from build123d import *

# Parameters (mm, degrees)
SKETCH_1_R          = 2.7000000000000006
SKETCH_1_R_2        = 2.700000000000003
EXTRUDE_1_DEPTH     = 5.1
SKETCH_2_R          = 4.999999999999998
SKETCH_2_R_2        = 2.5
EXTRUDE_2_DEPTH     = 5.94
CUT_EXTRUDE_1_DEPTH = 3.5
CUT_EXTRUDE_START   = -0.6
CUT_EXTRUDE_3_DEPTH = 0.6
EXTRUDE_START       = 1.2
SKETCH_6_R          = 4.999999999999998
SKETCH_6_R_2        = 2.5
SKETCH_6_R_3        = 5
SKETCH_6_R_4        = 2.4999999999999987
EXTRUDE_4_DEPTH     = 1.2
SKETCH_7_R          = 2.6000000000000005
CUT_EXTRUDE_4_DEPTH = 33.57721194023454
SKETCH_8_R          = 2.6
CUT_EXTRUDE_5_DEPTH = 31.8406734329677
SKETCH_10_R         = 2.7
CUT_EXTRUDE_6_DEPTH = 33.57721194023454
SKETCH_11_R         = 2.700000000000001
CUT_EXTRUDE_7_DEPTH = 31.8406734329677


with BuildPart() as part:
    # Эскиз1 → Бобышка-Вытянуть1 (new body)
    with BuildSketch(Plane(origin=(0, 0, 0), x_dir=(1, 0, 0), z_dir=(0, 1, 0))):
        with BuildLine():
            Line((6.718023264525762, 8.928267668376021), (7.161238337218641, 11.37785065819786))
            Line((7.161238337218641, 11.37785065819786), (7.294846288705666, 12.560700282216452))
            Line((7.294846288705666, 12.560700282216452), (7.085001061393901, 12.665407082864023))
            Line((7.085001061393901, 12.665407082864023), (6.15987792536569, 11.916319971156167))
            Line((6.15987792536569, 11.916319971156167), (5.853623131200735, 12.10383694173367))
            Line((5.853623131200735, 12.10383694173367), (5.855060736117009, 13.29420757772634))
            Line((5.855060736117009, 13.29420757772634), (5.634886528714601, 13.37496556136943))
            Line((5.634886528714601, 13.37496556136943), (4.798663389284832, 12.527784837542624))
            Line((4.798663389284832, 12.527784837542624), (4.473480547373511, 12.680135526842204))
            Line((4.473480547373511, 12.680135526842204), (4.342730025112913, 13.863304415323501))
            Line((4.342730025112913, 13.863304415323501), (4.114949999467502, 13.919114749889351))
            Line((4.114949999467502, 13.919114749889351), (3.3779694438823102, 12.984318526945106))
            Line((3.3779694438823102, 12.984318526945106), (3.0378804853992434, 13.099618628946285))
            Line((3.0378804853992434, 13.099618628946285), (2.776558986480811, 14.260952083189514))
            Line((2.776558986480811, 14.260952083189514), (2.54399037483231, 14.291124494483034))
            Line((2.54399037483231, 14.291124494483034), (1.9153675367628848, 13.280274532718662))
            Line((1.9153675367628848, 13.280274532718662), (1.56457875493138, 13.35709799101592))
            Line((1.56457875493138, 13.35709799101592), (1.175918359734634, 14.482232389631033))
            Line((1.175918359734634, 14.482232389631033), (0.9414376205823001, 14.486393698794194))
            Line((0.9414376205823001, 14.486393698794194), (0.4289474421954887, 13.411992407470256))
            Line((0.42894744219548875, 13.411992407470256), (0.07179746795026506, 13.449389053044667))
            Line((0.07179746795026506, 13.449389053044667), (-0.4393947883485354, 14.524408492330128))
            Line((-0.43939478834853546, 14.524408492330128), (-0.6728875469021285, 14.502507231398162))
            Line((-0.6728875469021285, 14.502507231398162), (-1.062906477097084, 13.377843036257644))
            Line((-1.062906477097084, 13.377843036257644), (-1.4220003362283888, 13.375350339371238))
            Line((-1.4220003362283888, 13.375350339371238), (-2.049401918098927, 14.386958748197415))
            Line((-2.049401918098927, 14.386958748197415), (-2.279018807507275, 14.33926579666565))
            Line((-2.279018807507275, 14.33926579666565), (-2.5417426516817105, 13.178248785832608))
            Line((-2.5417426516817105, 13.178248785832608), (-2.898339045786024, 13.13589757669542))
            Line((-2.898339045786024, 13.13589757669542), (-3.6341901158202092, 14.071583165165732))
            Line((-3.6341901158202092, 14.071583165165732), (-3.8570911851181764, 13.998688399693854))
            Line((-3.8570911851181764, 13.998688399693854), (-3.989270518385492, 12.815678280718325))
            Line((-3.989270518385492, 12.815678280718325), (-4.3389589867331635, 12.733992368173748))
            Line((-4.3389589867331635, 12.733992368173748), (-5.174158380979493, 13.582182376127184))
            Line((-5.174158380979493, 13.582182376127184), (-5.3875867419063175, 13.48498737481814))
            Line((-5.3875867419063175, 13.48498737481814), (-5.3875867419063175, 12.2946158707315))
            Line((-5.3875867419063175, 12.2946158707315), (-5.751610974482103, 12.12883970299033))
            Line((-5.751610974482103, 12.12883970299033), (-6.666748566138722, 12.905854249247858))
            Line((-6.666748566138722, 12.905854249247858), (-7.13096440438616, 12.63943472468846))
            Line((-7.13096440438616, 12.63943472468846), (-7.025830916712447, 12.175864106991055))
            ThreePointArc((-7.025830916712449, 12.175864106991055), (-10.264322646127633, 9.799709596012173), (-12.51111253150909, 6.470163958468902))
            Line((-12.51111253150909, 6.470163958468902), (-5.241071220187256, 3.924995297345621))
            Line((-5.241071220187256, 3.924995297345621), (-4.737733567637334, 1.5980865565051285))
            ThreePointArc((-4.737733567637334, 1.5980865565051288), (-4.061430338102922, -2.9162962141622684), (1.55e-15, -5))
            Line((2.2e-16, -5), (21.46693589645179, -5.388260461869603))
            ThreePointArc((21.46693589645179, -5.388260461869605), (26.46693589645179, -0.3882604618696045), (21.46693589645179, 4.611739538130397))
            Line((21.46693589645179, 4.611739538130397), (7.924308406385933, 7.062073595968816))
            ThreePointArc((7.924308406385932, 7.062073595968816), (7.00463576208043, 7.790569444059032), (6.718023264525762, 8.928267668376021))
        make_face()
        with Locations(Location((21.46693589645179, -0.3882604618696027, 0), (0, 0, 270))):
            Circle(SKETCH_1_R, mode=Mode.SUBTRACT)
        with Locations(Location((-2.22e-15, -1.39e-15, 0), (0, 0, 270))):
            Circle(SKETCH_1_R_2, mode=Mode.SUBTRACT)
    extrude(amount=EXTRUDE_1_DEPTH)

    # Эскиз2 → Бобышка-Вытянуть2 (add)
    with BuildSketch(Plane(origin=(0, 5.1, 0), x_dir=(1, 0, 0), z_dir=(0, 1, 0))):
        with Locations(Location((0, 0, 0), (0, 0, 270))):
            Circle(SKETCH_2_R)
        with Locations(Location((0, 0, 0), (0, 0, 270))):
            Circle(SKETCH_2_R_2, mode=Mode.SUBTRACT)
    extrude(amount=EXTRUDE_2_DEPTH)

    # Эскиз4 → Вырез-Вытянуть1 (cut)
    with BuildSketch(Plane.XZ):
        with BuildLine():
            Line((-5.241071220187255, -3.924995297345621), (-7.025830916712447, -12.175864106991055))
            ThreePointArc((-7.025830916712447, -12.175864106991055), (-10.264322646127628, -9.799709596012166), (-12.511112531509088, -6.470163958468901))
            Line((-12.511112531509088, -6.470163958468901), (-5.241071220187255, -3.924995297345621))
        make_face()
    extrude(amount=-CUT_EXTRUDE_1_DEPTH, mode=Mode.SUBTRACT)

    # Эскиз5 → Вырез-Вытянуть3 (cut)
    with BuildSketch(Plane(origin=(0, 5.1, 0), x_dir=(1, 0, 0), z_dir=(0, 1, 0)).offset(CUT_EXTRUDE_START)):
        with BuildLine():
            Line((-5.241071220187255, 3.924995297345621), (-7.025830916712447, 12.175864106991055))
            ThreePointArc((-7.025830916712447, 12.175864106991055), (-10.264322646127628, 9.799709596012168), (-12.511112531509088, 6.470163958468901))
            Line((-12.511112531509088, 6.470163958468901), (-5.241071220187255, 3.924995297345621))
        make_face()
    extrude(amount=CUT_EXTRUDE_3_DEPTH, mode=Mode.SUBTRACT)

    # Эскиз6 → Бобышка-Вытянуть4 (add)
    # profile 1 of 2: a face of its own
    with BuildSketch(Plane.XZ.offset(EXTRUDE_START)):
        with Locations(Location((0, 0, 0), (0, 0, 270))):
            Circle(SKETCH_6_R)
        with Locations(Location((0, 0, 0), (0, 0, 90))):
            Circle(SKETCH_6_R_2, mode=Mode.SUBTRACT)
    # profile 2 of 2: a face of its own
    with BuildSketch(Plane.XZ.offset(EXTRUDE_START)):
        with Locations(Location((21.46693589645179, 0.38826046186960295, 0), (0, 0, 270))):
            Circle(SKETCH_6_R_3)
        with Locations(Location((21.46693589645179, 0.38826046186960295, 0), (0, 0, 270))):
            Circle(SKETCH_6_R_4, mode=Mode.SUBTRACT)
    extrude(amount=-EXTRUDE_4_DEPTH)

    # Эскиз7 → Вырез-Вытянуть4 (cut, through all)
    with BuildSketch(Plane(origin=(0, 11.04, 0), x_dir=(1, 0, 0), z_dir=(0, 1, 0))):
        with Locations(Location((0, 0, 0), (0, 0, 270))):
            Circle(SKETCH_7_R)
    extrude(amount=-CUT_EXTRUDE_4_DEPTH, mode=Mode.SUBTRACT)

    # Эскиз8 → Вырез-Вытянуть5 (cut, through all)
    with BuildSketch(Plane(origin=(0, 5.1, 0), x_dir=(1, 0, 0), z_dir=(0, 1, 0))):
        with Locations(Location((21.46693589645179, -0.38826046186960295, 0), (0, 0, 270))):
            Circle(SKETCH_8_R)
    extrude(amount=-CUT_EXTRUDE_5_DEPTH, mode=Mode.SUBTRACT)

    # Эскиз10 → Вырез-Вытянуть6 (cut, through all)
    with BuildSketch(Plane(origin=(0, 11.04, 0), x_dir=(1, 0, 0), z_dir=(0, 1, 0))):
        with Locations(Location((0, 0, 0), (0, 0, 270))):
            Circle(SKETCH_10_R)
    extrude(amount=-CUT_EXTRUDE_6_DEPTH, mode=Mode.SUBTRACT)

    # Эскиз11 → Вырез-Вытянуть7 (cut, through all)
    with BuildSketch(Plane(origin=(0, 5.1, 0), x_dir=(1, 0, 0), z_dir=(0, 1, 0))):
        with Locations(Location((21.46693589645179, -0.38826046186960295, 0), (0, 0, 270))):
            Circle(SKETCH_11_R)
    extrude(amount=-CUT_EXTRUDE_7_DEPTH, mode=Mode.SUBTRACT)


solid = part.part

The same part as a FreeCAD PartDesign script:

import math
import FreeCAD as App
import Part
import Sketcher
from FreeCAD import Vector

doc = App.newDocument("Part")
body = doc.addObject("PartDesign::Body", "Body")

# Sketch on XZ plane
sketch1 = body.newObject("Sketcher::SketchObject", "Sketch")
sketch1.AttachmentSupport = (doc.getObject("XZ_Plane"), [""])
sketch1.MapMode = "FlatFace"
sketch1.addGeometry(Part.LineSegment(Vector(6.718023, -8.928268, 0), Vector(7.161238, -11.377851, 0)), False)
sketch1.addGeometry(Part.LineSegment(Vector(7.161238, -11.377851, 0), Vector(7.294846, -12.5607, 0)), False)
sketch1.addGeometry(Part.LineSegment(Vector(7.294846, -12.5607, 0), Vector(7.085001, -12.665407, 0)), False)
sketch1.addGeometry(Part.LineSegment(Vector(7.085001, -12.665407, 0), Vector(6.159878, -11.91632, 0)), False)
sketch1.addGeometry(Part.LineSegment(Vector(6.159878, -11.91632, 0), Vector(5.853623, -12.103837, 0)), False)
sketch1.addGeometry(Part.LineSegment(Vector(5.853623, -12.103837, 0), Vector(5.855061, -13.294208, 0)), False)
sketch1.addGeometry(Part.LineSegment(Vector(5.855061, -13.294208, 0), Vector(5.634887, -13.374966, 0)), False)
sketch1.addGeometry(Part.LineSegment(Vector(5.634887, -13.374966, 0), Vector(4.798663, -12.527785, 0)), False)
sketch1.addGeometry(Part.LineSegment(Vector(4.798663, -12.527785, 0), Vector(4.473481, -12.680136, 0)), False)
sketch1.addGeometry(Part.LineSegment(Vector(4.473481, -12.680136, 0), Vector(4.34273, -13.863304, 0)), False)
sketch1.addGeometry(Part.LineSegment(Vector(4.34273, -13.863304, 0), Vector(4.11495, -13.919115, 0)), False)
sketch1.addGeometry(Part.LineSegment(Vector(4.11495, -13.919115, 0), Vector(3.377969, -12.984319, 0)), False)
sketch1.addGeometry(Part.LineSegment(Vector(3.377969, -12.984319, 0), Vector(3.03788, -13.099619, 0)), False)
sketch1.addGeometry(Part.LineSegment(Vector(3.03788, -13.099619, 0), Vector(2.776559, -14.260952, 0)), False)
sketch1.addGeometry(Part.LineSegment(Vector(2.776559, -14.260952, 0), Vector(2.54399, -14.291124, 0)), False)
sketch1.addGeometry(Part.LineSegment(Vector(2.54399, -14.291124, 0), Vector(1.915368, -13.280275, 0)), False)
sketch1.addGeometry(Part.LineSegment(Vector(1.915368, -13.280275, 0), Vector(1.564579, -13.357098, 0)), False)
sketch1.addGeometry(Part.LineSegment(Vector(1.564579, -13.357098, 0), Vector(1.175918, -14.482232, 0)), False)
sketch1.addGeometry(Part.LineSegment(Vector(1.175918, -14.482232, 0), Vector(0.941438, -14.486394, 0)), False)
sketch1.addGeometry(Part.LineSegment(Vector(0.941438, -14.486394, 0), Vector(0.428947, -13.411992, 0)), False)
sketch1.addGeometry(Part.LineSegment(Vector(0.428947, -13.411992, 0), Vector(0.071797, -13.449389, 0)), False)
sketch1.addGeometry(Part.LineSegment(Vector(0.071797, -13.449389, 0), Vector(-0.439395, -14.524408, 0)), False)
sketch1.addGeometry(Part.LineSegment(Vector(-0.439395, -14.524408, 0), Vector(-0.672888, -14.502507, 0)), False)
sketch1.addGeometry(Part.LineSegment(Vector(-0.672888, -14.502507, 0), Vector(-1.062906, -13.377843, 0)), False)
sketch1.addGeometry(Part.LineSegment(Vector(-1.062906, -13.377843, 0), Vector(-1.422, -13.37535, 0)), False)
sketch1.addGeometry(Part.LineSegment(Vector(-1.422, -13.37535, 0), Vector(-2.049402, -14.386959, 0)), False)
sketch1.addGeometry(Part.LineSegment(Vector(-2.049402, -14.386959, 0), Vector(-2.279019, -14.339266, 0)), False)
sketch1.addGeometry(Part.LineSegment(Vector(-2.279019, -14.339266, 0), Vector(-2.541743, -13.178249, 0)), False)
sketch1.addGeometry(Part.LineSegment(Vector(-2.541743, -13.178249, 0), Vector(-2.898339, -13.135898, 0)), False)
sketch1.addGeometry(Part.LineSegment(Vector(-2.898339, -13.135898, 0), Vector(-3.63419, -14.071583, 0)), False)
sketch1.addGeometry(Part.LineSegment(Vector(-3.63419, -14.071583, 0), Vector(-3.857091, -13.998688, 0)), False)
sketch1.addGeometry(Part.LineSegment(Vector(-3.857091, -13.998688, 0), Vector(-3.989271, -12.815678, 0)), False)
sketch1.addGeometry(Part.LineSegment(Vector(-3.989271, -12.815678, 0), Vector(-4.338959, -12.733992, 0)), False)
sketch1.addGeometry(Part.LineSegment(Vector(-4.338959, -12.733992, 0), Vector(-5.174158, -13.582182, 0)), False)
sketch1.addGeometry(Part.LineSegment(Vector(-5.174158, -13.582182, 0), Vector(-5.387587, -13.484987, 0)), False)
sketch1.addGeometry(Part.LineSegment(Vector(-5.387587, -13.484987, 0), Vector(-5.387587, -12.294616, 0)), False)
sketch1.addGeometry(Part.LineSegment(Vector(-5.387587, -12.294616, 0), Vector(-5.751611, -12.12884, 0)), False)
sketch1.addGeometry(Part.LineSegment(Vector(-5.751611, -12.12884, 0), Vector(-6.666749, -12.905854, 0)), False)
sketch1.addGeometry(Part.LineSegment(Vector(-6.666749, -12.905854, 0), Vector(-7.130964, -12.639435, 0)), False)
sketch1.addGeometry(Part.LineSegment(Vector(-7.130964, -12.639435, 0), Vector(-7.025831, -12.175864, 0)), False)
sketch1.addGeometry(Part.ArcOfCircle(Part.Circle(Vector(-1.809542, -1.671548, 0), Vector(0, 0, 1), 11.728185), math.radians(-155.848394), math.radians(-116.408319)), False)
sketch1.addGeometry(Part.LineSegment(Vector(-12.511113, -6.470164, 0), Vector(-5.241071, -3.924995, 0)), False)
sketch1.addGeometry(Part.LineSegment(Vector(-5.241071, -3.924995, 0), Vector(-4.737734, -1.598087, 0)), False)
sketch1.addGeometry(Part.ArcOfCircle(Part.Circle(Vector(0, 0, 0), Vector(0, 0, 1), 5), math.radians(90), math.radians(198.639783)), False)
sketch1.addGeometry(Part.LineSegment(Vector(0, 5, 0), Vector(21.466936, 5.38826, 0)), False)
sketch1.addGeometry(Part.ArcOfCircle(Part.Circle(Vector(21.466936, 0.38826, 0), Vector(0, 0, 1), 5), math.radians(-90), math.radians(90)), False)
sketch1.addGeometry(Part.LineSegment(Vector(21.466936, -4.61174, 0), Vector(7.924308, -7.062074, 0)), False)
sketch1.addGeometry(Part.ArcOfCircle(Part.Circle(Vector(8.538236, -8.78187, 0), Vector(0, 0, 1), 1.826091), math.radians(109.645397), math.radians(184.598331)), False)
sketch1.addGeometry(Part.Circle(Vector(21.466936, 0.38826, 0), Vector(0, 0, 1), 2.7), False)
sketch1.addGeometry(Part.Circle(Vector(0, 0, 0), Vector(0, 0, 1), 2.7), False)
sketch1.addConstraint(Sketcher.Constraint("Coincident", 0, 2, 1, 1))
sketch1.addConstraint(Sketcher.Constraint("Coincident", 1, 2, 2, 1))
sketch1.addConstraint(Sketcher.Constraint("Coincident", 2, 2, 3, 1))
sketch1.addConstraint(Sketcher.Constraint("Coincident", 3, 2, 4, 1))
sketch1.addConstraint(Sketcher.Constraint("Coincident", 4, 2, 5, 1))
sketch1.addConstraint(Sketcher.Constraint("Coincident", 5, 2, 6, 1))
sketch1.addConstraint(Sketcher.Constraint("Coincident", 6, 2, 7, 1))
sketch1.addConstraint(Sketcher.Constraint("Coincident", 7, 2, 8, 1))
sketch1.addConstraint(Sketcher.Constraint("Coincident", 8, 2, 9, 1))
sketch1.addConstraint(Sketcher.Constraint("Coincident", 9, 2, 10, 1))
sketch1.addConstraint(Sketcher.Constraint("Coincident", 10, 2, 11, 1))
sketch1.addConstraint(Sketcher.Constraint("Coincident", 11, 2, 12, 1))
sketch1.addConstraint(Sketcher.Constraint("Coincident", 12, 2, 13, 1))
sketch1.addConstraint(Sketcher.Constraint("Coincident", 13, 2, 14, 1))
sketch1.addConstraint(Sketcher.Constraint("Coincident", 14, 2, 15, 1))
sketch1.addConstraint(Sketcher.Constraint("Coincident", 15, 2, 16, 1))
sketch1.addConstraint(Sketcher.Constraint("Coincident", 16, 2, 17, 1))
sketch1.addConstraint(Sketcher.Constraint("Coincident", 17, 2, 18, 1))
sketch1.addConstraint(Sketcher.Constraint("Coincident", 18, 2, 19, 1))
sketch1.addConstraint(Sketcher.Constraint("Coincident", 19, 2, 20, 1))
sketch1.addConstraint(Sketcher.Constraint("Coincident", 20, 2, 21, 1))
sketch1.addConstraint(Sketcher.Constraint("Coincident", 21, 2, 22, 1))
sketch1.addConstraint(Sketcher.Constraint("Coincident", 22, 2, 23, 1))
sketch1.addConstraint(Sketcher.Constraint("Coincident", 23, 2, 24, 1))
sketch1.addConstraint(Sketcher.Constraint("Coincident", 24, 2, 25, 1))
sketch1.addConstraint(Sketcher.Constraint("Coincident", 25, 2, 26, 1))
sketch1.addConstraint(Sketcher.Constraint("Coincident", 26, 2, 27, 1))
sketch1.addConstraint(Sketcher.Constraint("Coincident", 27, 2, 28, 1))
sketch1.addConstraint(Sketcher.Constraint("Coincident", 28, 2, 29, 1))
sketch1.addConstraint(Sketcher.Constraint("Coincident", 29, 2, 30, 1))
sketch1.addConstraint(Sketcher.Constraint("Coincident", 30, 2, 31, 1))
sketch1.addConstraint(Sketcher.Constraint("Coincident", 31, 2, 32, 1))
sketch1.addConstraint(Sketcher.Constraint("Coincident", 32, 2, 33, 1))
sketch1.addConstraint(Sketcher.Constraint("Coincident", 33, 2, 34, 1))
sketch1.addConstraint(Sketcher.Constraint("Coincident", 34, 2, 35, 1))
sketch1.addConstraint(Sketcher.Constraint("Coincident", 35, 2, 36, 1))
sketch1.addConstraint(Sketcher.Constraint("Coincident", 36, 2, 37, 1))
sketch1.addConstraint(Sketcher.Constraint("Coincident", 37, 2, 38, 1))
sketch1.addConstraint(Sketcher.Constraint("Coincident", 38, 2, 39, 1))
sketch1.addConstraint(Sketcher.Constraint("Coincident", 39, 2, 40, 2))
sketch1.addConstraint(Sketcher.Constraint("Coincident", 40, 1, 41, 1))
sketch1.addConstraint(Sketcher.Constraint("Coincident", 41, 2, 42, 1))
sketch1.addConstraint(Sketcher.Constraint("Coincident", 42, 2, 43, 2))
sketch1.addConstraint(Sketcher.Constraint("Coincident", 43, 1, 44, 1))
sketch1.addConstraint(Sketcher.Constraint("Coincident", 44, 2, 45, 2))
sketch1.addConstraint(Sketcher.Constraint("Coincident", 45, 1, 46, 1))
sketch1.addConstraint(Sketcher.Constraint("Coincident", 46, 2, 47, 1))
sketch1.addConstraint(Sketcher.Constraint("Coincident", 47, 2, 0, 1))
sketch1.addConstraint(Sketcher.Constraint("Vertical", 35))
sketch1.addConstraint(Sketcher.Constraint("Coincident", 43, 3, -1, 1))
sketch1.addConstraint(Sketcher.Constraint("Coincident", 49, 3, -1, 1))
sketch1.addConstraint(Sketcher.Constraint("Coincident", 48, 3, 45, 3))
sketch1.addConstraint(Sketcher.Constraint("PointOnObject", 43, 1, -2))
sketch1.addConstraint(Sketcher.Constraint("Radius", 43, 5.0))
sketch1.addConstraint(Sketcher.Constraint("Radius", 45, 5.0))
sketch1.addConstraint(Sketcher.Constraint("Diameter", 48, 5.4))
sketch1.addConstraint(Sketcher.Constraint("Diameter", 49, 5.4))
sketch1.addConstraint(Sketcher.Constraint("Radius", 47, 1.826091))
sketch1.addConstraint(Sketcher.Constraint("DistanceX", -1, 1, 2, 2, 7.085001))
sketch1.addConstraint(Sketcher.Constraint("DistanceX", 24, 2, -1, 1, 1.422))
sketch1.addConstraint(Sketcher.Constraint("Radius", 40, 11.728185))
sketch1.addConstraint(Sketcher.Constraint("DistanceY", 35, 1, 35, 2, 1.190372))
sketch1.addConstraint(Sketcher.Constraint("DistanceY", 1, 2, -1, 1, 12.5607))
sketch1.addConstraint(Sketcher.Constraint("DistanceX", 25, 2, -1, 1, 2.049402))
sketch1.addConstraint(Sketcher.Constraint("DistanceX", 47, 3, 45, 3, 12.9287))
sketch1.addConstraint(Sketcher.Constraint("DistanceY", 5, 2, 2, 2, 0.6288))
sketch1.addConstraint(Sketcher.Constraint("DistanceY", 8, 2, 4, 2, 0.576299))
sketch1.addConstraint(Sketcher.Constraint("DistanceY", 12, 2, 11, 2, 0.1153))
sketch1.addConstraint(Sketcher.Constraint("DistanceX", 12, 2, 8, 2, 1.4356))
sketch1.addConstraint(Sketcher.Constraint("DistanceX", 15, 2, 11, 2, 1.462602))
sketch1.addConstraint(Sketcher.Constraint("DistanceX", 16, 2, 12, 2, 1.473302))
sketch1.addConstraint(Sketcher.Constraint("DistanceY", 18, 2, 19, 2, 1.074401))
sketch1.addConstraint(Sketcher.Constraint("DistanceY", 21, 2, 22, 2, 0.021901))
sketch1.addConstraint(Sketcher.Constraint("DistanceX", 25, 2, 20, 2, 2.121199))
sketch1.addConstraint(Sketcher.Constraint("DistanceY", 24, 2, 27, 2, 0.197102))
sketch1.addConstraint(Sketcher.Constraint("DistanceX", 30, 2, 29, 2, 0.222901))
sketch1.addConstraint(Sketcher.Constraint("DistanceX", 33, 2, 32, 2, 0.835199))
sketch1.addConstraint(Sketcher.Constraint("DistanceY", 29, 2, 33, 2, 0.489401))
sketch1.addConstraint(Sketcher.Constraint("DistanceY", 30, 2, 34, 2, 0.513701))
sketch1.addConstraint(Sketcher.Constraint("DistanceY", 39, 2, 40, 1, 5.7057))
sketch1.addConstraint(Sketcher.Constraint("DistanceX", 40, 1, 36, 2, 6.759502))
sketch1.addConstraint(Sketcher.Constraint("DistanceX", 47, 3, 44, 2, 12.9287))
sketch1.addConstraint(Sketcher.Constraint("DistanceX", 47, 3, 45, 1, 12.9287))
sketch1.addConstraint(Sketcher.Constraint("DistanceX", 4, 2, 47, 2, 0.8644))
sketch1.addConstraint(Sketcher.Constraint("Distance", 1, 1.190372))
sketch1.addConstraint(Sketcher.Constraint("Distance", 3, 1.190372))
sketch1.addConstraint(Sketcher.Constraint("Distance", 5, 1.190372))
sketch1.addConstraint(Sketcher.Constraint("Distance", 7, 1.190372))
sketch1.addConstraint(Sketcher.Constraint("Distance", 9, 1.190372))
sketch1.addConstraint(Sketcher.Constraint("Distance", 11, 1.190372))
sketch1.addConstraint(Sketcher.Constraint("Distance", 13, 1.190372))
sketch1.addConstraint(Sketcher.Constraint("Distance", 15, 1.190372))
sketch1.addConstraint(Sketcher.Constraint("Distance", 17, 1.190372))
sketch1.addConstraint(Sketcher.Constraint("Distance", 19, 1.190372))
sketch1.addConstraint(Sketcher.Constraint("Distance", 21, 1.190372))
sketch1.addConstraint(Sketcher.Constraint("Distance", 23, 1.190372))
sketch1.addConstraint(Sketcher.Constraint("Distance", 25, 1.190372))
sketch1.addConstraint(Sketcher.Constraint("Distance", 27, 1.190372))
sketch1.addConstraint(Sketcher.Constraint("Distance", 29, 1.190372))
sketch1.addConstraint(Sketcher.Constraint("Distance", 31, 1.190372))
sketch1.addConstraint(Sketcher.Constraint("Distance", 33, 1.190372))
sketch1.addConstraint(Sketcher.Constraint("Distance", 37, 1.200512))
sketch1.addConstraint(Sketcher.Constraint("DistanceX", 40, 3, -1, 1, 1.809542))
sketch1.addConstraint(Sketcher.Constraint("DistanceY", -1, 1, 45, 3, 0.38826))
sketch1.addConstraint(Sketcher.Constraint("DistanceY", 47, 3, -1, 1, 8.78187))
sketch1.addConstraint(Sketcher.Constraint("DistanceX", -1, 1, 0, 2, 7.161238))
sketch1.addConstraint(Sketcher.Constraint("DistanceY", 0, 2, -1, 1, 11.377851))
sketch1.addConstraint(Sketcher.Constraint("DistanceY", 3, 2, -1, 1, 11.91632))
sketch1.addConstraint(Sketcher.Constraint("DistanceX", -1, 1, 5, 2, 5.855061))
sketch1.addConstraint(Sketcher.Constraint("DistanceX", -1, 1, 8, 2, 4.473481))
sketch1.addConstraint(Sketcher.Constraint("DistanceX", -1, 1, 9, 2, 4.34273))
sketch1.addConstraint(Sketcher.Constraint("DistanceX", -1, 1, 10, 2, 4.11495))
sketch1.addConstraint(Sketcher.Constraint("DistanceX", -1, 1, 11, 2, 3.377969))
sketch1.addConstraint(Sketcher.Constraint("DistanceY", 11, 2, -1, 1, 12.984319))
sketch1.addConstraint(Sketcher.Constraint("DistanceX", -1, 1, 13, 2, 2.776559))
sketch1.addConstraint(Sketcher.Constraint("DistanceX", -1, 1, 14, 2, 2.54399))
sketch1.addConstraint(Sketcher.Constraint("DistanceX", -1, 1, 17, 2, 1.175918))
sketch1.addConstraint(Sketcher.Constraint("DistanceY", 20, 2, -1, 1, 13.449389))
sketch1.addConstraint(Sketcher.Constraint("DistanceY", 21, 2, -1, 1, 14.524408))
sketch1.addConstraint(Sketcher.Constraint("DistanceY", 24, 2, -1, 1, 13.37535))
sketch1.addConstraint(Sketcher.Constraint("DistanceX", 26, 2, -1, 1, 2.279019))
sketch1.addConstraint(Sketcher.Constraint("DistanceX", 28, 2, -1, 1, 2.898339))
sketch1.addConstraint(Sketcher.Constraint("DistanceX", 29, 2, -1, 1, 3.63419))
sketch1.addConstraint(Sketcher.Constraint("DistanceY", 30, 2, -1, 1, 13.998688))
sketch1.addConstraint(Sketcher.Constraint("DistanceX", 31, 2, -1, 1, 3.989271))
sketch1.addConstraint(Sketcher.Constraint("DistanceX", 32, 2, -1, 1, 4.338959))
sketch1.addConstraint(Sketcher.Constraint("DistanceX", 36, 2, -1, 1, 5.751611))
sketch1.addConstraint(Sketcher.Constraint("DistanceY", 36, 2, -1, 1, 12.12884))
sketch1.addConstraint(Sketcher.Constraint("DistanceX", 37, 2, -1, 1, 6.666749))
sketch1.addConstraint(Sketcher.Constraint("DistanceX", 41, 2, -1, 1, 5.241071))
sketch1.addConstraint(Sketcher.Constraint("DistanceX", -1, 1, 46, 2, 7.924308))
sketch1.addConstraint(Sketcher.Constraint("DistanceY", 40, 3, 45, 3, 2.059808))
sketch1.addConstraint(Sketcher.Constraint("DistanceX", 40, 3, 47, 3, 10.347778))
sketch1.addConstraint(Sketcher.Constraint("DistanceY", 2, 2, 40, 3, 10.993859))
sketch1.addConstraint(Sketcher.Constraint("DistanceY", 6, 2, 4, 2, 1.271129))
sketch1.addConstraint(Sketcher.Constraint("DistanceX", 6, 2, 3, 2, 0.524991))
sketch1.addConstraint(Sketcher.Constraint("DistanceX", 7, 2, 4, 2, 1.05496))
sketch1.addConstraint(Sketcher.Constraint("DistanceY", 6, 2, 7, 2, 0.847181))
sketch1.addConstraint(Sketcher.Constraint("DistanceY", 14, 2, 10, 2, 0.37201))
sketch1.addConstraint(Sketcher.Constraint("DistanceY", 16, 2, 12, 2, 0.257479))
sketch1.addConstraint(Sketcher.Constraint("DistanceX", 18, 2, 17, 2, 0.234481))
sketch1.addConstraint(Sketcher.Constraint("DistanceY", 18, 2, 17, 2, 0.004161))
sketch1.addConstraint(Sketcher.Constraint("DistanceX", 23, 2, 22, 2, 0.390019))
sketch1.addConstraint(Sketcher.Constraint("DistanceX", 23, 2, 21, 2, 0.623512))
sketch1.addConstraint(Sketcher.Constraint("DistanceY", 22, 2, 26, 2, 0.163241))
sketch1.addConstraint(Sketcher.Constraint("DistanceY", 27, 2, 28, 2, 0.042351))
sketch1.addConstraint(Sketcher.Constraint("DistanceX", 34, 2, 33, 2, 0.213428))
sketch1.addConstraint(Sketcher.Constraint("DistanceY", 37, 2, 38, 2, 0.26642))
sketch1.addConstraint(Sketcher.Constraint("DistanceX", 40, 1, 38, 2, 5.380148))
sketch1.addConstraint(Sketcher.Constraint("DistanceY", 40, 1, 41, 2, 2.545169))
sketch1.addConstraint(Sketcher.Constraint("DistanceY", 41, 2, 42, 2, 2.326909))
pad1 = body.newObject("PartDesign::Pad", "Pad")
pad1.Profile = sketch1
pad1.Length = 5.1
pad1.Reversed = True

# Sketch on XZ plane
sketch2 = body.newObject("Sketcher::SketchObject", "Sketch001")
sketch2.AttachmentSupport = (doc.getObject("XZ_Plane"), [""])
sketch2.MapMode = "FlatFace"
sketch2.AttachmentOffset = App.Placement(Vector(0, 0, -5.1), App.Rotation())
sketch2.addGeometry(Part.Circle(Vector(0, 0, 0), Vector(0, 0, 1), 5), False)
sketch2.addGeometry(Part.Circle(Vector(0, 0, 0), Vector(0, 0, 1), 2.5), False)
sketch2.addConstraint(Sketcher.Constraint("Coincident", 0, 3, -1, 1))
sketch2.addConstraint(Sketcher.Constraint("Coincident", 1, 3, -1, 1))
sketch2.addConstraint(Sketcher.Constraint("Diameter", 0, 10.0))
sketch2.addConstraint(Sketcher.Constraint("Diameter", 1, 5.0))
pad2 = body.newObject("PartDesign::Pad", "Pad001")
pad2.Profile = sketch2
pad2.Length = 5.94
pad2.Reversed = True

# Sketch on XZ plane
sketch3 = body.newObject("Sketcher::SketchObject", "Sketch002")
sketch3.AttachmentSupport = (doc.getObject("XZ_Plane"), [""])
sketch3.MapMode = "FlatFace"
sketch3.addGeometry(Part.LineSegment(Vector(-7, -12, 0), Vector(-5, -4, 0)), False)
sketch3.addGeometry(Part.LineSegment(Vector(-5, -4, 0), Vector(-13, -6, 0)), False)
sketch3.addGeometry(Part.ArcOfCircle(Part.Circle(Vector(-2, -2, 0), Vector(0, 0, 1), 12), math.radians(-156), math.radians(-116)), False)
sketch3.addConstraint(Sketcher.Constraint("Coincident", 0, 2, 1, 1))
sketch3.addConstraint(Sketcher.Constraint("Coincident", 1, 2, 2, 1))
sketch3.addConstraint(Sketcher.Constraint("Coincident", 2, 2, 0, 1))
sketch3.addConstraint(Sketcher.Constraint("Radius", 2, 11.728185))
sketch3.addConstraint(Sketcher.Constraint("DistanceY", 2, 2, 1, 2, 5.7057))
sketch3.addConstraint(Sketcher.Constraint("DistanceX", 2, 3, -1, 1, 1.809542))
sketch3.addConstraint(Sketcher.Constraint("DistanceX", 0, 2, -1, 1, 5.241071))
sketch3.addConstraint(Sketcher.Constraint("DistanceX", 2, 2, -1, 1, 7.025831))
sketch3.addConstraint(Sketcher.Constraint("DistanceY", 1, 2, 0, 2, 2.545169))
sketch3.addConstraint(Sketcher.Constraint("DistanceY", 2, 3, -1, 1, 1.671548))
pocket1 = body.newObject("PartDesign::Pocket", "Pocket")
pocket1.Profile = sketch3
pocket1.Length = 3.5

# Sketch on XZ plane
sketch4 = body.newObject("Sketcher::SketchObject", "Sketch003")
sketch4.AttachmentSupport = (doc.getObject("XZ_Plane"), [""])
sketch4.MapMode = "FlatFace"
sketch4.AttachmentOffset = App.Placement(Vector(0, 0, -4.5), App.Rotation())
sketch4.addGeometry(Part.LineSegment(Vector(-5, -4, 0), Vector(-7, -12, 0)), False)
sketch4.addGeometry(Part.ArcOfCircle(Part.Circle(Vector(-2, -2, 0), Vector(0, 0, 1), 12), math.radians(-156), math.radians(-116)), False)
sketch4.addGeometry(Part.LineSegment(Vector(-13, -6, 0), Vector(-5, -4, 0)), False)
sketch4.addConstraint(Sketcher.Constraint("Coincident", 0, 2, 1, 2))
sketch4.addConstraint(Sketcher.Constraint("Coincident", 1, 1, 2, 1))
sketch4.addConstraint(Sketcher.Constraint("Coincident", 2, 2, 0, 1))
sketch4.addConstraint(Sketcher.Constraint("Radius", 1, 11.728185))
sketch4.addConstraint(Sketcher.Constraint("DistanceY", 0, 2, 1, 1, 5.7057))
sketch4.addConstraint(Sketcher.Constraint("DistanceX", 1, 3, -1, 1, 1.809542))
sketch4.addConstraint(Sketcher.Constraint("DistanceX", 0, 2, -1, 1, 7.025831))
sketch4.addConstraint(Sketcher.Constraint("DistanceX", 2, 2, -1, 1, 5.241071))
sketch4.addConstraint(Sketcher.Constraint("DistanceY", 1, 1, 2, 2, 2.545169))
sketch4.addConstraint(Sketcher.Constraint("DistanceY", 1, 3, -1, 1, 1.671548))
pocket2 = body.newObject("PartDesign::Pocket", "Pocket001")
pocket2.Profile = sketch4
pocket2.Length = 0.6

# Sketch on XZ plane
sketch5 = body.newObject("Sketcher::SketchObject", "Sketch004")
sketch5.AttachmentSupport = (doc.getObject("XZ_Plane"), [""])
sketch5.MapMode = "FlatFace"
sketch5.AttachmentOffset = App.Placement(Vector(0, 0, 1.2), App.Rotation())
sketch5.addGeometry(Part.Circle(Vector(0, 0, 0), Vector(0, 0, 1), 5), False)
sketch5.addGeometry(Part.Circle(Vector(0, 0, 0), Vector(0, 0, 1), 2.5), False)
sketch5.addGeometry(Part.Circle(Vector(21.5, 0.4, 0), Vector(0, 0, 1), 5), False)
sketch5.addGeometry(Part.Circle(Vector(21.5, 0.4, 0), Vector(0, 0, 1), 2.5), False)
sketch5.addConstraint(Sketcher.Constraint("Coincident", 0, 3, -1, 1))
sketch5.addConstraint(Sketcher.Constraint("Coincident", 1, 3, -1, 1))
sketch5.addConstraint(Sketcher.Constraint("Coincident", 3, 3, 2, 3))
sketch5.addConstraint(Sketcher.Constraint("Equal", 0, 2))
sketch5.addConstraint(Sketcher.Constraint("Equal", 1, 3))
sketch5.addConstraint(Sketcher.Constraint("Diameter", 0, 10.0))
sketch5.addConstraint(Sketcher.Constraint("Diameter", 1, 5.0))
sketch5.addConstraint(Sketcher.Constraint("DistanceY", -1, 1, 2, 3, 0.38826))
sketch5.addConstraint(Sketcher.Constraint("DistanceX", -1, 1, 2, 3, 21.466936))
pad3 = body.newObject("PartDesign::Pad", "Pad002")
pad3.Profile = sketch5
pad3.Length = 1.2
pad3.Reversed = True

# Sketch on XZ plane
sketch6 = body.newObject("Sketcher::SketchObject", "Sketch005")
sketch6.AttachmentSupport = (doc.getObject("XZ_Plane"), [""])
sketch6.MapMode = "FlatFace"
sketch6.AttachmentOffset = App.Placement(Vector(0, 0, -11.04), App.Rotation())
sketch6.addGeometry(Part.Circle(Vector(0, 0, 0), Vector(0, 0, 1), 2.6), False)
sketch6.addConstraint(Sketcher.Constraint("Coincident", 0, 3, -1, 1))
sketch6.addConstraint(Sketcher.Constraint("Diameter", 0, 5.2))
pocket3 = body.newObject("PartDesign::Pocket", "Pocket002")
pocket3.Profile = sketch6
pocket3.Type = "ThroughAll"
pocket3.Reversed = True

# Sketch on XZ plane
sketch7 = body.newObject("Sketcher::SketchObject", "Sketch006")
sketch7.AttachmentSupport = (doc.getObject("XZ_Plane"), [""])
sketch7.MapMode = "FlatFace"
sketch7.AttachmentOffset = App.Placement(Vector(0, 0, -5.1), App.Rotation())
sketch7.addGeometry(Part.Circle(Vector(21.5, 0.4, 0), Vector(0, 0, 1), 2.6), False)
sketch7.addConstraint(Sketcher.Constraint("Diameter", 0, 5.2))
sketch7.addConstraint(Sketcher.Constraint("DistanceY", -1, 1, 0, 3, 0.38826))
sketch7.addConstraint(Sketcher.Constraint("DistanceX", -1, 1, 0, 3, 21.466936))
pocket4 = body.newObject("PartDesign::Pocket", "Pocket003")
pocket4.Profile = sketch7
pocket4.Type = "ThroughAll"
pocket4.Reversed = True

# Sketch on XZ plane
sketch8 = body.newObject("Sketcher::SketchObject", "Sketch007")
sketch8.AttachmentSupport = (doc.getObject("XZ_Plane"), [""])
sketch8.MapMode = "FlatFace"
sketch8.AttachmentOffset = App.Placement(Vector(0, 0, -11.04), App.Rotation())
sketch8.addGeometry(Part.Circle(Vector(0, 0, 0), Vector(0, 0, 1), 2.7), False)
sketch8.addConstraint(Sketcher.Constraint("Coincident", 0, 3, -1, 1))
sketch8.addConstraint(Sketcher.Constraint("Diameter", 0, 5.4))
pocket5 = body.newObject("PartDesign::Pocket", "Pocket004")
pocket5.Profile = sketch8
pocket5.Type = "ThroughAll"
pocket5.Reversed = True

# Sketch on XZ plane
sketch9 = body.newObject("Sketcher::SketchObject", "Sketch008")
sketch9.AttachmentSupport = (doc.getObject("XZ_Plane"), [""])
sketch9.MapMode = "FlatFace"
sketch9.AttachmentOffset = App.Placement(Vector(0, 0, -5.1), App.Rotation())
sketch9.addGeometry(Part.Circle(Vector(21.5, 0.4, 0), Vector(0, 0, 1), 2.7), False)
sketch9.addConstraint(Sketcher.Constraint("Diameter", 0, 5.4))
sketch9.addConstraint(Sketcher.Constraint("DistanceY", -1, 1, 0, 3, 0.38826))
sketch9.addConstraint(Sketcher.Constraint("DistanceX", -1, 1, 0, 3, 21.466936))
pocket6 = body.newObject("PartDesign::Pocket", "Pocket005")
pocket6.Profile = sketch9
pocket6.Type = "ThroughAll"
pocket6.Reversed = True

doc.recompute()
